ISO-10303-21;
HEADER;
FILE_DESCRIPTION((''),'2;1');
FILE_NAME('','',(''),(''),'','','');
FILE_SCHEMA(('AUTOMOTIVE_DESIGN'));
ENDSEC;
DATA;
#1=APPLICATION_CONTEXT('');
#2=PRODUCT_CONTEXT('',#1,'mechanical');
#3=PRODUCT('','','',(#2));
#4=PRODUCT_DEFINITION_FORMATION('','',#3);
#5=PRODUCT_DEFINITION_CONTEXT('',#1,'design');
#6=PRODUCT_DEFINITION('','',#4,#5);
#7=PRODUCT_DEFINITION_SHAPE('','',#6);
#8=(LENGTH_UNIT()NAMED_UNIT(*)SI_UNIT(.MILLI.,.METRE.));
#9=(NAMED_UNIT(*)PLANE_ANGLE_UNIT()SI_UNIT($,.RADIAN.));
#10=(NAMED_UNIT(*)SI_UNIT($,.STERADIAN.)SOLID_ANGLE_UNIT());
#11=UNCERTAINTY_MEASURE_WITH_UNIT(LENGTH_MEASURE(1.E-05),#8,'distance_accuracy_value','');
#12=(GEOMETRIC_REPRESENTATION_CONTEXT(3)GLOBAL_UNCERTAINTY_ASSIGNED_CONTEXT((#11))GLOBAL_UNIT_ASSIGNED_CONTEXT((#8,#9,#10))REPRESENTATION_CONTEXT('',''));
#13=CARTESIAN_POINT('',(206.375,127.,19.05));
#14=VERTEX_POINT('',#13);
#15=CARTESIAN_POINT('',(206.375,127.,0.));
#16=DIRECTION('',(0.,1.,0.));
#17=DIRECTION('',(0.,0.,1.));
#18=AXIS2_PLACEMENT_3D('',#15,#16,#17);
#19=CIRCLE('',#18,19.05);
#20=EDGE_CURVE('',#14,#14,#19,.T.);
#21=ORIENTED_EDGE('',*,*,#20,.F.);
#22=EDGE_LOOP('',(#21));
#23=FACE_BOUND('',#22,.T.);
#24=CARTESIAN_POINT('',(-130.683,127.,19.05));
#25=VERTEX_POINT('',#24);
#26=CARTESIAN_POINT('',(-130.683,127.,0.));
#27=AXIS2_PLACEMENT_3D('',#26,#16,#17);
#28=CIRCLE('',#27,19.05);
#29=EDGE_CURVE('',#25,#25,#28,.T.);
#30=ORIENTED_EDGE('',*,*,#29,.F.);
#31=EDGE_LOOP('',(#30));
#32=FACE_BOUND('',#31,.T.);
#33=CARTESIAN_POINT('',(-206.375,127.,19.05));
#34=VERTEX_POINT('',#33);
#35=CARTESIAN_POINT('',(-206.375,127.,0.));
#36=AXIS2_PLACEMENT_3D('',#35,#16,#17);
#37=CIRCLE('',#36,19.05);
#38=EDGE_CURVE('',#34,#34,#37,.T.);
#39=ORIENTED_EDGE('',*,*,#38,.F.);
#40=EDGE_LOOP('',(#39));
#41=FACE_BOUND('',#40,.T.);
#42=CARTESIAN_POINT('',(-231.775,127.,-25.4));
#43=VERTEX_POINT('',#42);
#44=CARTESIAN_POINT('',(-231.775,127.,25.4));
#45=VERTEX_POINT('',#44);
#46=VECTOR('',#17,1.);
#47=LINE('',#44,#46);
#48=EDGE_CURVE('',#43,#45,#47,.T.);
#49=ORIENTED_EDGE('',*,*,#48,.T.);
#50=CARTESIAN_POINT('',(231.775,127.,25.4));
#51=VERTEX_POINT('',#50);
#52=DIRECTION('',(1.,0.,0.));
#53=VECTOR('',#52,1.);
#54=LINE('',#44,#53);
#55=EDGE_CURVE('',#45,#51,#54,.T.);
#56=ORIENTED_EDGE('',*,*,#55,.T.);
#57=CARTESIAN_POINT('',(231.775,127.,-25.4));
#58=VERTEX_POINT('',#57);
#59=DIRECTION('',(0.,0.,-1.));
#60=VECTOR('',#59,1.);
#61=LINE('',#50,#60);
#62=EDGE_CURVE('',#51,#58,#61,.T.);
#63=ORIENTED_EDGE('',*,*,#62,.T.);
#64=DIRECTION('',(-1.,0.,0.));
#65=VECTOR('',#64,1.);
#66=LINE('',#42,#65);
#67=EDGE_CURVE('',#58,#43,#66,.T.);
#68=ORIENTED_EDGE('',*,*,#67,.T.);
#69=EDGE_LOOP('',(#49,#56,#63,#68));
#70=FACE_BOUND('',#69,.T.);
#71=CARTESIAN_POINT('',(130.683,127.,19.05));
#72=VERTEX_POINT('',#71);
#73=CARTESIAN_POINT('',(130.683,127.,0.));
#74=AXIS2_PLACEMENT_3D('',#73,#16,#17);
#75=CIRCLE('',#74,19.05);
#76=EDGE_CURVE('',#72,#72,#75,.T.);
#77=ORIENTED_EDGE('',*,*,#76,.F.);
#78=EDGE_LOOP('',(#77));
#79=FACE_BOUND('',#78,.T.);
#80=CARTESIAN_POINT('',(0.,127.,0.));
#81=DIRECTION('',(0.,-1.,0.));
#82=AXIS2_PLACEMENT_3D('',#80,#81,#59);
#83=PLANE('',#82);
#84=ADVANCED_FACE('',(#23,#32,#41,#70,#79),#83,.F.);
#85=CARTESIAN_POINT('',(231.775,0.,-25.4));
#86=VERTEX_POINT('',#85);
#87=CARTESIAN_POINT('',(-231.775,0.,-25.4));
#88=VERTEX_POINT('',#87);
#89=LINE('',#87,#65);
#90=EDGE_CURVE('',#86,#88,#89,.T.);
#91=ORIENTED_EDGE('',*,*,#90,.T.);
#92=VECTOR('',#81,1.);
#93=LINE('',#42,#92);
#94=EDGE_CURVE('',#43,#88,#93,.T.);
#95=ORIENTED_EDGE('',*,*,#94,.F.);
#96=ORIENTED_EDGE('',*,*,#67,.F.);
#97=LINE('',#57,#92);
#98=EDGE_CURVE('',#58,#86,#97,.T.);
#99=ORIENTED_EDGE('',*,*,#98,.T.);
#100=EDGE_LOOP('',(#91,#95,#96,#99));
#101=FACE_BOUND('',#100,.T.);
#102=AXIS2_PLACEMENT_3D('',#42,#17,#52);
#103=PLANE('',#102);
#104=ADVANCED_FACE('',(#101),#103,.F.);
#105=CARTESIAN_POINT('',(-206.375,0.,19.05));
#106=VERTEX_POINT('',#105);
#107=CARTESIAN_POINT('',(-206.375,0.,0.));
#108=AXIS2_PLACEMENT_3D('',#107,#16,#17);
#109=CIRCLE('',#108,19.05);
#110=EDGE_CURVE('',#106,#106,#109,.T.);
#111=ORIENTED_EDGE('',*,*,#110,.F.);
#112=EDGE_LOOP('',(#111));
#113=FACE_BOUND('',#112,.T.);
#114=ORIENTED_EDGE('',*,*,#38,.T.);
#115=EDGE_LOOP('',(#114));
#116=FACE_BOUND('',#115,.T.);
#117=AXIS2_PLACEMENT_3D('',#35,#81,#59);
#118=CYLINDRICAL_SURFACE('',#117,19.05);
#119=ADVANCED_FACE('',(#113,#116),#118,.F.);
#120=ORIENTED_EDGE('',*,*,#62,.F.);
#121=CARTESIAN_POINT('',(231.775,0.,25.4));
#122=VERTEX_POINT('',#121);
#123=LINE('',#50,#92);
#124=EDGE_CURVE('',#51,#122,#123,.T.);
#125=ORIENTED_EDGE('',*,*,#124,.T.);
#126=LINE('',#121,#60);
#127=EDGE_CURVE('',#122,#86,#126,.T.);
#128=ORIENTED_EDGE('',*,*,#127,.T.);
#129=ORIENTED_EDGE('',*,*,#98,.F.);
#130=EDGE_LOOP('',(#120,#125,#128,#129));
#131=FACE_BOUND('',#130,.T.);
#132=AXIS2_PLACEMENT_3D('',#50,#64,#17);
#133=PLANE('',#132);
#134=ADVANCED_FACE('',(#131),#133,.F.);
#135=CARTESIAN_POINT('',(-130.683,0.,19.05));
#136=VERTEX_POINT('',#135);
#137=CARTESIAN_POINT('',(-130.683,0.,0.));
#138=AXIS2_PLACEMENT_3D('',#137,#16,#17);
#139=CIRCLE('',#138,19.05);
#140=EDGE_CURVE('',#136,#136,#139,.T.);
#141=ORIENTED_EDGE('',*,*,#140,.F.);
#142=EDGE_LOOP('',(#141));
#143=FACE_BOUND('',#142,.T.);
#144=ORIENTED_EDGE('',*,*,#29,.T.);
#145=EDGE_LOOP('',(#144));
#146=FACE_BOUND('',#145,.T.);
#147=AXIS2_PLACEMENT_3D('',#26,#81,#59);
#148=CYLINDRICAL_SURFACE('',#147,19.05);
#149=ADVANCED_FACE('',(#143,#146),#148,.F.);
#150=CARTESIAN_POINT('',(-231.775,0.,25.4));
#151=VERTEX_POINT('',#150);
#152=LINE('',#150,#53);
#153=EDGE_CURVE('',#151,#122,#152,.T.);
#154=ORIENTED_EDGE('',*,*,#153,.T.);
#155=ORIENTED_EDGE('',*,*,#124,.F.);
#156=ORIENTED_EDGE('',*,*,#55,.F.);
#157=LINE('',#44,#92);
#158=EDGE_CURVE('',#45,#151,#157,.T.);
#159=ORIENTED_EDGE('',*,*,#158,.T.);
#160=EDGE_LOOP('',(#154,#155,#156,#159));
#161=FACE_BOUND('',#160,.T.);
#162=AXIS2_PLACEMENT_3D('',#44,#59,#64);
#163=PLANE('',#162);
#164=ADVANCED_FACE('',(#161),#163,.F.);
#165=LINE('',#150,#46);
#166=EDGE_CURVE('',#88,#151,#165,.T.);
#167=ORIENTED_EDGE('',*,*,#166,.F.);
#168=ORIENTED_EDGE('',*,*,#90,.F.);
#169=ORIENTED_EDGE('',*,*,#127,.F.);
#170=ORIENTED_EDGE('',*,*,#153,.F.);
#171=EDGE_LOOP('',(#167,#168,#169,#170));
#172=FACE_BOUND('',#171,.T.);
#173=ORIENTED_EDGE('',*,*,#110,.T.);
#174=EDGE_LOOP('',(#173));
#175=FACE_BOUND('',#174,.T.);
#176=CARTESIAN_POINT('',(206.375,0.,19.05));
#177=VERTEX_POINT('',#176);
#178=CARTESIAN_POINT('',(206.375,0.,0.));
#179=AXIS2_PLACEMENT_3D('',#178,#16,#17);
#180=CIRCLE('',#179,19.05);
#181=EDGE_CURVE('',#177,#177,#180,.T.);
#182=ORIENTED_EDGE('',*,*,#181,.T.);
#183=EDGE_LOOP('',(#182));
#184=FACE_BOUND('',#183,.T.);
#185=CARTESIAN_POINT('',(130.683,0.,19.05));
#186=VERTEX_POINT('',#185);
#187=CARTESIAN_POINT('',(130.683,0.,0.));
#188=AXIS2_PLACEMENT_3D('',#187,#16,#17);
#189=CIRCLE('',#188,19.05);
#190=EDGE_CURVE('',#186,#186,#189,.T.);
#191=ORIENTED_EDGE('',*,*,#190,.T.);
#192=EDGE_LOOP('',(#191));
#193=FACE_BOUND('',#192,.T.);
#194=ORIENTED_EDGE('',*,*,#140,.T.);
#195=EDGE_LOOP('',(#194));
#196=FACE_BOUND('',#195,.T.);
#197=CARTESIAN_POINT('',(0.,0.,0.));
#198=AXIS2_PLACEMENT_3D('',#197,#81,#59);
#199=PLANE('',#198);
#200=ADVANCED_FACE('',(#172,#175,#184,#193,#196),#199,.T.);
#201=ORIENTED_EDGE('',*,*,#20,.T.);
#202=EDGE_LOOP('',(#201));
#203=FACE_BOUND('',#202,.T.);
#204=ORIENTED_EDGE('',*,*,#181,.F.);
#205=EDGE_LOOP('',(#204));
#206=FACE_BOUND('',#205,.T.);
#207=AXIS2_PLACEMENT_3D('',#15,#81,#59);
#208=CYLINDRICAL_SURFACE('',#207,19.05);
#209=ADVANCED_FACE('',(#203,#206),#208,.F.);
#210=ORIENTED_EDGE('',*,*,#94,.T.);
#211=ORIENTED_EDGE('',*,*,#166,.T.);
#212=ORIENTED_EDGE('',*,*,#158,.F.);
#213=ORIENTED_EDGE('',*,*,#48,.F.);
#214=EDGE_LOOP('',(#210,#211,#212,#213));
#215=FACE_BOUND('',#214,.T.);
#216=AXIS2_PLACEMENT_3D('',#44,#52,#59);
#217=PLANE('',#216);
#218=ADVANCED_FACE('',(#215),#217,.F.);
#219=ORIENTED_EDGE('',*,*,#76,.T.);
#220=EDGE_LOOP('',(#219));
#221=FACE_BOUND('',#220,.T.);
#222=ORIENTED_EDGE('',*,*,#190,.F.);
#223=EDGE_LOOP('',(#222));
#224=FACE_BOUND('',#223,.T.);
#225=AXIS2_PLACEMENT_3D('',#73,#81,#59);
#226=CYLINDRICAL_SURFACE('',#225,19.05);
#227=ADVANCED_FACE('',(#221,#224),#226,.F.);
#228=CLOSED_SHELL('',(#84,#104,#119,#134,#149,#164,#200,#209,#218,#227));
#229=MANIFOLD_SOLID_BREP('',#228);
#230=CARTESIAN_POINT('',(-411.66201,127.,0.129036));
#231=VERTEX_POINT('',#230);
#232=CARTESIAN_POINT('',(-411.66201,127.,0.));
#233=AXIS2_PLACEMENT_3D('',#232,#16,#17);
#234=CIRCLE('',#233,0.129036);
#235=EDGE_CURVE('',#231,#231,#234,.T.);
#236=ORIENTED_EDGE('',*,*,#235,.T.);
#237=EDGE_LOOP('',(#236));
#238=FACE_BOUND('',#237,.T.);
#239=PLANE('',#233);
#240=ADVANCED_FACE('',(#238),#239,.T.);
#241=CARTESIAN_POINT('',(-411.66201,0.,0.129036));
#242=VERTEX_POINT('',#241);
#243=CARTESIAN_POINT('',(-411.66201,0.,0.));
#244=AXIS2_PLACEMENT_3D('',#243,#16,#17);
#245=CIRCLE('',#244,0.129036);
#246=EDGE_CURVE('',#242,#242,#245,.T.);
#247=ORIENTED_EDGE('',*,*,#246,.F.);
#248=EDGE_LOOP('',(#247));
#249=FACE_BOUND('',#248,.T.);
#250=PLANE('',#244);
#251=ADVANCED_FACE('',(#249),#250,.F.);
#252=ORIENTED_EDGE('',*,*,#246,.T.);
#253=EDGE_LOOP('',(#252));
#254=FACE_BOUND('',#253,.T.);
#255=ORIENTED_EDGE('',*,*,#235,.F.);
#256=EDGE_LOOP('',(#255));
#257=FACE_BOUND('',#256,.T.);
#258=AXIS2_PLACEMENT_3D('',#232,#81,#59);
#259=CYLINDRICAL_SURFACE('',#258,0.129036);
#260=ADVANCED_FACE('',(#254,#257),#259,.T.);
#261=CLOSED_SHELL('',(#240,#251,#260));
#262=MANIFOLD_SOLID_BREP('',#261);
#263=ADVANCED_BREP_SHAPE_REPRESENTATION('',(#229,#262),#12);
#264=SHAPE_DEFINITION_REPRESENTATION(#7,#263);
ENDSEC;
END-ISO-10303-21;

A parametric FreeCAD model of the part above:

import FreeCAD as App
import Part
import Sketcher
from FreeCAD import Vector
Q = App.Units.Quantity


def add_polygon(sketch, points):
    """Adds a closed chain of lines whose ends are joined by coincident constraints."""
    first, n = sketch.GeometryCount, len(points)
    for a, b in zip(points, points[1:] + points[:1]):
        sketch.addGeometry(Part.LineSegment(App.Vector(*a, 0), App.Vector(*b, 0)), False)
    for i in range(n):
        sketch.addConstraint(Sketcher.Constraint("Coincident", first + i, 2, first + (i + 1) % n, 1))

doc = App.newDocument("Part")
body = doc.addObject("PartDesign::Body", "Body")

# Sketch on XZ plane
sketch1 = doc.addObject("Sketcher::SketchObject", "Sketch")
body.addObject(sketch1)
sketch1.AttachmentSupport = (doc.XZ_Plane, [""])
sketch1.MapMode = "FlatFace"
sketch1.addGeometry(Part.Circle(Vector(-411.66, 0, 0), Vector(0, 0, 1), 0.13), False)
sketch1.addConstraint([
    Sketcher.Constraint("PointOnObject", 0, 3, -1),
    Sketcher.Constraint("Diameter", 0, 0.258071),
    Sketcher.Constraint("DistanceX", 0, 3, -1, 1, 411.66201),
])
pad1 = doc.addObject("PartDesign::Pad", "Pad")
body.addObject(pad1)
pad1.Profile = sketch1
pad1.Length = Q("5 in")
pad1.Reversed = True
body2 = doc.addObject("PartDesign::Body", "Body001")

# Sketch on XZ plane
sketch2 = doc.addObject("Sketcher::SketchObject", "Sketch001")
body2.addObject(sketch2)
sketch2.AttachmentSupport = (doc.getObject("XZ_Plane001"), [""])
sketch2.MapMode = "FlatFace"
add_polygon(sketch2, [(-232, -25), (-232, 25), (232, 25), (232, -25)])  # lines 0-3
sketch2.addGeometry(Part.Circle(Vector(-206, 0, 0), Vector(0, 0, 1), 19), False)  # 4
sketch2.addGeometry(Part.Circle(Vector(-131, 0, 0), Vector(0, 0, 1), 19), False)  # 5
sketch2.addGeometry(Part.Circle(Vector(131, 0, 0), Vector(0, 0, 1), 19), False)  # 6
sketch2.addGeometry(Part.Circle(Vector(206, 0, 0), Vector(0, 0, 1), 19), False)  # 7
sketch2.addConstraint([
    Sketcher.Constraint("Vertical", 0),
    Sketcher.Constraint("Horizontal", 1),
    Sketcher.Constraint("Vertical", 2),
    Sketcher.Constraint("Horizontal", 3),
    Sketcher.Constraint("Equal", 4, 5),
    Sketcher.Constraint("Equal", 5, 6),
    Sketcher.Constraint("Equal", 6, 7),
    Sketcher.Constraint("Symmetric", 5, 3, 6, 3, -1, 1),
    Sketcher.Constraint("Symmetric", 4, 3, 7, 3, -1, 1),
    Sketcher.Constraint("Symmetric", 0, 2, 2, 2, -1, 1),
    Sketcher.Constraint("PointOnObject", 4, 3, -1),
    Sketcher.Constraint("PointOnObject", 5, 3, -1),
    Sketcher.Constraint("Diameter", 4, Q("1.5 in")),
    Sketcher.Constraint("DistanceY", 0, 1, 0, 2, Q("2 in")),
    Sketcher.Constraint("DistanceX", 0, 2, 4, 3, Q("1 in")),
    Sketcher.Constraint("DistanceX", 1, 1, 1, 2, Q("18.25 in")),
    Sketcher.Constraint("DistanceX", 4, 3, 5, 3, Q("2.98 in")),
])
pad2 = doc.addObject("PartDesign::Pad", "Pad001")
body2.addObject(pad2)
pad2.Profile = sketch2
pad2.Length = Q("5 in")
pad2.Reversed = True

doc.recompute()
